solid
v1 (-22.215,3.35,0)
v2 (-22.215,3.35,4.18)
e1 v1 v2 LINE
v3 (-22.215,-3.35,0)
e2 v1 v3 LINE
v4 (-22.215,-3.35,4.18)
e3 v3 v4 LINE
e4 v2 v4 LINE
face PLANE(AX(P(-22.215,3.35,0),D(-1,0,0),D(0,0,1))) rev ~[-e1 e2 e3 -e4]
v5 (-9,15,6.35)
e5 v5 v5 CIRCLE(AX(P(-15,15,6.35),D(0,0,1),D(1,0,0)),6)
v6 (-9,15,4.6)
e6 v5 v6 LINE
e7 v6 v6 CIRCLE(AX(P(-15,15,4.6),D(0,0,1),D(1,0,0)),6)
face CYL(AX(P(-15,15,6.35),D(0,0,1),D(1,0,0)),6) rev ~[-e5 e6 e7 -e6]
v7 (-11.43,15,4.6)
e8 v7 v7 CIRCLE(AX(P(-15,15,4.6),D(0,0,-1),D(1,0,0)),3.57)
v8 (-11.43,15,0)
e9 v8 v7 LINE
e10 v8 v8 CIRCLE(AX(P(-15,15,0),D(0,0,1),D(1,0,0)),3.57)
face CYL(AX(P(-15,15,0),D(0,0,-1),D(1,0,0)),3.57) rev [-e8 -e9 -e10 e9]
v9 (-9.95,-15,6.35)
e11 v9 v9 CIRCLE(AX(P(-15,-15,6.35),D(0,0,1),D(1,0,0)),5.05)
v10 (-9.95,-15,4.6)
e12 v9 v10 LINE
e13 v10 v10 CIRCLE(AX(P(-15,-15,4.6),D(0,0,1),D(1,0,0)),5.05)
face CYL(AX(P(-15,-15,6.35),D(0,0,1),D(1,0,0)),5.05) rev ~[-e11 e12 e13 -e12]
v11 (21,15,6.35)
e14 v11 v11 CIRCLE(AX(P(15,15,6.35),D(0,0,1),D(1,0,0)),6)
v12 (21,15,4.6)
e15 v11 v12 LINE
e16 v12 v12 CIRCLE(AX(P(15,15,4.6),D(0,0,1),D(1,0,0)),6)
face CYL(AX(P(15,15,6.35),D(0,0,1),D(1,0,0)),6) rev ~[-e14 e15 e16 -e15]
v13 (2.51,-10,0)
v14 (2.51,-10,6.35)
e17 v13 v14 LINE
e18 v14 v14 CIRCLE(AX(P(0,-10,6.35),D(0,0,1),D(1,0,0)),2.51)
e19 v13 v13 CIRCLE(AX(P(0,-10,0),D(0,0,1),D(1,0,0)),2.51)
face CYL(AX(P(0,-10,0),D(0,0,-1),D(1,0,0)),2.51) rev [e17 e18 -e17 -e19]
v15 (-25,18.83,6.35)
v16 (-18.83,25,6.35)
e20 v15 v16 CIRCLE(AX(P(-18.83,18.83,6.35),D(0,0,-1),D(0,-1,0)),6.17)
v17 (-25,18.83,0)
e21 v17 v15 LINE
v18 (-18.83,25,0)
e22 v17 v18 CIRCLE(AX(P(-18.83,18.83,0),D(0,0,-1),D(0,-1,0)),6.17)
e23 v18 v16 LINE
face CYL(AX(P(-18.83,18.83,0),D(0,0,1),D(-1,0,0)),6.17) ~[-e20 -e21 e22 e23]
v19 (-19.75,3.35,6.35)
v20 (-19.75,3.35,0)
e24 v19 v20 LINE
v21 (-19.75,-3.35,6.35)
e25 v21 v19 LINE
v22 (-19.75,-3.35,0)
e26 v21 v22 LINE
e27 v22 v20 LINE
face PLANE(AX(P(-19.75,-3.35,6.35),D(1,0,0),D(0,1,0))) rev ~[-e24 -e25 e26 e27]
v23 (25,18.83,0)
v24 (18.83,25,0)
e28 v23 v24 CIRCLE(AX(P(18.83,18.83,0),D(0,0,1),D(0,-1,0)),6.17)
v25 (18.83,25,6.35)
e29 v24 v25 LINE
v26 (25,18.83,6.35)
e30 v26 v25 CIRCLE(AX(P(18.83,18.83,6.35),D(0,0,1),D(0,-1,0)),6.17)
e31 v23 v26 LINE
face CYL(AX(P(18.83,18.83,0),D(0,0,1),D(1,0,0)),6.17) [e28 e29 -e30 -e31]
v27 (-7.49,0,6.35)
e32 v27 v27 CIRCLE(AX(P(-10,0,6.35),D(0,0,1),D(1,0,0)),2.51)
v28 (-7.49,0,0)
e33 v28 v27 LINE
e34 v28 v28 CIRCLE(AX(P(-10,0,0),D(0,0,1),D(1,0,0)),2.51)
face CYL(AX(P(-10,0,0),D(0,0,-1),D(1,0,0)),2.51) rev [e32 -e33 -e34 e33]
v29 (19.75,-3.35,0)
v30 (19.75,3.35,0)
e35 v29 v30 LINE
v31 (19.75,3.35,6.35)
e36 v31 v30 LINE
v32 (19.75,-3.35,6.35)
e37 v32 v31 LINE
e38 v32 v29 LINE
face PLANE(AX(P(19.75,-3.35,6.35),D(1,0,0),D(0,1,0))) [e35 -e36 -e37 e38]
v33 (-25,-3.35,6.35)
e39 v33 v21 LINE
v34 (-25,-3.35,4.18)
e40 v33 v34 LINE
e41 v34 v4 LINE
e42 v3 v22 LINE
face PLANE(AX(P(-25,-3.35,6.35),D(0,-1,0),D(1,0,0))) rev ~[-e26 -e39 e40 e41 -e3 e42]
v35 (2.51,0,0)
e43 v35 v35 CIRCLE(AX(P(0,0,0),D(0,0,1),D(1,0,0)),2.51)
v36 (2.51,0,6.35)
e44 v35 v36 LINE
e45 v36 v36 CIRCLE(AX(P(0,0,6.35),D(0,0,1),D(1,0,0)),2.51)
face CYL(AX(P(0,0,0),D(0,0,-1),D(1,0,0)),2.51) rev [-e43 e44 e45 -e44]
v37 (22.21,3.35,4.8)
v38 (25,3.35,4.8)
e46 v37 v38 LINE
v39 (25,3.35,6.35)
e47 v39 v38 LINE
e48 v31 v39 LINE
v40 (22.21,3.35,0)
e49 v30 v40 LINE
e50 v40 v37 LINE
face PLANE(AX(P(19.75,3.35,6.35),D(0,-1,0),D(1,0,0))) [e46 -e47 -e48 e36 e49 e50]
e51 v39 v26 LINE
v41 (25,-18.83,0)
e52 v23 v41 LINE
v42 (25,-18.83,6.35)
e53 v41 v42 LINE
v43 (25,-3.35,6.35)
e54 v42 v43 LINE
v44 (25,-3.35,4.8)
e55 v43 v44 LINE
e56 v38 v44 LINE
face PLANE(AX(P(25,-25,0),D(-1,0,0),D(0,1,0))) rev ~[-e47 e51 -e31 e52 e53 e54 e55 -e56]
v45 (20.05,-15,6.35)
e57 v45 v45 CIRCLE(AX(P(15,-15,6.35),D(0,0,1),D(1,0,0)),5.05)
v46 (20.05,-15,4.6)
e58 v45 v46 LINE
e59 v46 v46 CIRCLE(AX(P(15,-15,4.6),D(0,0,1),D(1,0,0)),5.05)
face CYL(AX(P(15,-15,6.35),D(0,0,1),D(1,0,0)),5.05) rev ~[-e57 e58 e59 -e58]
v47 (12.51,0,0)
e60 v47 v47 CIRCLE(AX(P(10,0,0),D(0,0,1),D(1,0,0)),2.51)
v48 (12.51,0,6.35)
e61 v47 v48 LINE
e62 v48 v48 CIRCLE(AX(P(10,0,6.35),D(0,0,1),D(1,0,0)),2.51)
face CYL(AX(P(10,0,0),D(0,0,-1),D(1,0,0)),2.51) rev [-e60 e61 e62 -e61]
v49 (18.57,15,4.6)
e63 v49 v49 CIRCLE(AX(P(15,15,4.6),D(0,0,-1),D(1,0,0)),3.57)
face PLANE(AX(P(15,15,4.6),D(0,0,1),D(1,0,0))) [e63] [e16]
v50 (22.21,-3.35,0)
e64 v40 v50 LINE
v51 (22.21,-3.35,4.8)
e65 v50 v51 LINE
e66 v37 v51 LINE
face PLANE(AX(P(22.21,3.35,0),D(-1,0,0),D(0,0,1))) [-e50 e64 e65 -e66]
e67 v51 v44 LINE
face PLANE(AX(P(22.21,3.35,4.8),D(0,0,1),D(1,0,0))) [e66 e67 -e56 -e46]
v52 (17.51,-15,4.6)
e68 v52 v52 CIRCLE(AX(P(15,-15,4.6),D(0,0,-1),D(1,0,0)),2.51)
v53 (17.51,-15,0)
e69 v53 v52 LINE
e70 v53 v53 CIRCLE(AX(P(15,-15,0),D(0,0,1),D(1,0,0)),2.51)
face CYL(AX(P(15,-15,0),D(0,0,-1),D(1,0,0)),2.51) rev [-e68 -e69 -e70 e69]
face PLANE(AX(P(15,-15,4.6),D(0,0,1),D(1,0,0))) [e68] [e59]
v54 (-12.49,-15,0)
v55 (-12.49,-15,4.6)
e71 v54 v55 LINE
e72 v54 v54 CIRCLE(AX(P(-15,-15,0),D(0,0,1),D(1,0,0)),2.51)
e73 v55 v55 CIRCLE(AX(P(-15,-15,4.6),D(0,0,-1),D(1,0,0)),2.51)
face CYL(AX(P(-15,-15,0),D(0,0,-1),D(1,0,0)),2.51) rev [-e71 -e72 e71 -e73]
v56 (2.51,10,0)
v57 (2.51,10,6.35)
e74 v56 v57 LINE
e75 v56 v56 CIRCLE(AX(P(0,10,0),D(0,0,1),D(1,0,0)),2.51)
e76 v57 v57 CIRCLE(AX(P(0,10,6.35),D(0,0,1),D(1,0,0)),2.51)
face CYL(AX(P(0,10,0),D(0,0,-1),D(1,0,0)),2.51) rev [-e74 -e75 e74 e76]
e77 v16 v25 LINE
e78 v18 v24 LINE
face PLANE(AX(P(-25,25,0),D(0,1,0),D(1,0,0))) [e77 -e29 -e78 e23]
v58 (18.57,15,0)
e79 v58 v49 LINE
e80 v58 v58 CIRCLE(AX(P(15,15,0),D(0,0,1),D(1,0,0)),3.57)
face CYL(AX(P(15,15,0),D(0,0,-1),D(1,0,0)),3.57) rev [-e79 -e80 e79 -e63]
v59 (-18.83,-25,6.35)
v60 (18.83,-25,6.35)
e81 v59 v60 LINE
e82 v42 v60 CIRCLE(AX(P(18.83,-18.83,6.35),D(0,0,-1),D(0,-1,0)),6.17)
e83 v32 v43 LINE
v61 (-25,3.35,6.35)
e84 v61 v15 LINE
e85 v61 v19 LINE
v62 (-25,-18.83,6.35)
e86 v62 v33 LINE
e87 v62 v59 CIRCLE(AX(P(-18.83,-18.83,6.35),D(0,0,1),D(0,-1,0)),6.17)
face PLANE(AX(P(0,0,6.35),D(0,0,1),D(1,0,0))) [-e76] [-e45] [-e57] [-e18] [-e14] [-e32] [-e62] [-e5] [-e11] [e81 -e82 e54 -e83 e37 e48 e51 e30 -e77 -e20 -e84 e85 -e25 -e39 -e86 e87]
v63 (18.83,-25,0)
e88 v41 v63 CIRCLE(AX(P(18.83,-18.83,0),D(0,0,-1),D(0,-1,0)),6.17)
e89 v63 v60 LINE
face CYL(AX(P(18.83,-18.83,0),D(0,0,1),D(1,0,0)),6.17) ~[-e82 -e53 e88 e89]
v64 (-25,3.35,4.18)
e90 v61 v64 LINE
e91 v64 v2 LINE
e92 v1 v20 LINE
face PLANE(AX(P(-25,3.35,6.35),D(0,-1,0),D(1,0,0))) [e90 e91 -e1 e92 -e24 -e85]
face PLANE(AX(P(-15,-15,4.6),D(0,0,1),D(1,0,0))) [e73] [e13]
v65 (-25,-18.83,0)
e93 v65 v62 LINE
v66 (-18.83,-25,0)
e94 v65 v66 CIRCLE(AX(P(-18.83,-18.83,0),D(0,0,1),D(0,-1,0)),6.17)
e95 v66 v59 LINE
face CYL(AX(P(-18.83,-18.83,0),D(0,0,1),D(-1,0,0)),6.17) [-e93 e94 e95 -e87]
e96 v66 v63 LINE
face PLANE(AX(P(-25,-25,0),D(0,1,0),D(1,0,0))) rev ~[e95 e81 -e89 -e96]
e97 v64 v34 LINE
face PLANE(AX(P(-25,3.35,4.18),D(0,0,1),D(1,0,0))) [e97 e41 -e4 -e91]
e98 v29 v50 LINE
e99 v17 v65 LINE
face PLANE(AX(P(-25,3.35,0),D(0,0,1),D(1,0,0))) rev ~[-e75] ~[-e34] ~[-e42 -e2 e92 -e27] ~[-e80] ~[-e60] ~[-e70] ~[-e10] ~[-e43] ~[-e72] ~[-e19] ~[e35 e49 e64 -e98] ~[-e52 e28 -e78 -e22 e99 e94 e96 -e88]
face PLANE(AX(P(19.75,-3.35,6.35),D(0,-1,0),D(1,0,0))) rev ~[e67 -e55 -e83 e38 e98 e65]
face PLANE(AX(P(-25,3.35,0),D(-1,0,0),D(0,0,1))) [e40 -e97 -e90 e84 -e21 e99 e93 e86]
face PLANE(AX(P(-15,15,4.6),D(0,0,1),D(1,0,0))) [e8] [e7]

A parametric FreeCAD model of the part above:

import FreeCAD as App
import Part
import Sketcher
Q = App.Units.Quantity


def edges_at(feature, points):
    """Names of the edges that pass closest to the given points."""
    edges = feature.Shape.Edges
    near = lambda p: min(range(len(edges)), key=lambda i: edges[i].distToShape(Part.Vertex(*p))[0])
    return sorted({f"Edge{near(p) + 1}" for p in points})

doc = App.newDocument("Part")
body = doc.addObject("PartDesign::Body", "Body")

# Sketch on XY plane
sketch1 = body.newObject("Sketcher::SketchObject", "Sketch")
sketch1.AttachmentSupport = (doc.getObject("XY_Plane"), [""])
sketch1.MapMode = "FlatFace"
sketch1.addGeometry([
    Part.LineSegment(App.Vector(-25, 25, 0), App.Vector(-25, -25, 0)),  # 0
    Part.LineSegment(App.Vector(-25, -25, 0), App.Vector(25, -25, 0)),  # 1
    Part.LineSegment(App.Vector(25, -25, 0), App.Vector(25, 25, 0)),  # 2
    Part.LineSegment(App.Vector(25, 25, 0), App.Vector(-25, 25, 0)),  # 3
    Part.Circle(App.Vector(-15, -15, 0), App.Vector(0, 0, 1), 2.51),  # 4
    Part.Circle(App.Vector(0, -10, 0), App.Vector(0, 0, 1), 2.51),  # 5
    Part.Circle(App.Vector(-10, 0, 0), App.Vector(0, 0, 1), 2.51),  # 6
    Part.Circle(App.Vector(0, 0, 0), App.Vector(0, 0, 1), 2.51),  # 7
    Part.Circle(App.Vector(15, -15, 0), App.Vector(0, 0, 1), 2.51),  # 8
    Part.Circle(App.Vector(10, 0, 0), App.Vector(0, 0, 1), 2.51),  # 9
    Part.Circle(App.Vector(-15, 15, 0), App.Vector(0, 0, 1), 3.57),  # 10
    Part.Circle(App.Vector(0, 10, 0), App.Vector(0, 0, 1), 2.51),  # 11
    Part.Circle(App.Vector(15, 15, 0), App.Vector(0, 0, 1), 3.57),  # 12
], False)
sketch1.addConstraint([
    Sketcher.Constraint("Coincident", 0, 2, 1, 1),
    Sketcher.Constraint("Coincident", 1, 2, 2, 1),
    Sketcher.Constraint("Coincident", 2, 2, 3, 1),
    Sketcher.Constraint("Coincident", 3, 2, 0, 1),
    Sketcher.Constraint("Vertical", 0),
    Sketcher.Constraint("Horizontal", 1),
    Sketcher.Constraint("Vertical", 2),
    Sketcher.Constraint("Horizontal", 3),
    Sketcher.Constraint("Coincident", 7, 3, -1, 1),
    Sketcher.Constraint("Equal", 4, 5),
    Sketcher.Constraint("Equal", 5, 6),
    Sketcher.Constraint("Equal", 6, 7),
    Sketcher.Constraint("Equal", 7, 8),
    Sketcher.Constraint("Equal", 8, 9),
    Sketcher.Constraint("Equal", 9, 11),
    Sketcher.Constraint("Equal", 10, 12),
    Sketcher.Constraint("Symmetric", 6, 3, 9, 3, -1, 1),
    Sketcher.Constraint("Symmetric", 8, 3, 10, 3, -1, 1),
    Sketcher.Constraint("Symmetric", 5, 3, 11, 3, -1, 1),
    Sketcher.Constraint("Symmetric", 4, 3, 12, 3, -1, 1),
    Sketcher.Constraint("Symmetric", 0, 2, 2, 2, -1, 1),
    Sketcher.Constraint("Symmetric", 4, 3, 8, 3, -2),
    Sketcher.Constraint("PointOnObject", 5, 3, -2),
    Sketcher.Constraint("PointOnObject", 6, 3, -1),
    Sketcher.Constraint("Equal", 3, 0),
    Sketcher.Constraint("Diameter", 4, Q("5.02 mm")),
    Sketcher.Constraint("Diameter", 10, Q("7.14 mm")),
    Sketcher.Constraint("DistanceX", 1, 1, 1, 2, Q("50 mm")),
    Sketcher.Constraint("DistanceX", 4, 3, -1, 1, Q("15 mm")),
    Sketcher.Constraint("DistanceY", 4, 3, -1, 1, Q("15 mm")),
    Sketcher.Constraint("DistanceY", 5, 3, -1, 1, Q("10 mm")),
    Sketcher.Constraint("DistanceX", 6, 3, -1, 1, Q("10 mm")),
])
pad1 = body.newObject("PartDesign::Pad", "Pad")
pad1.Profile = sketch1
pad1.Length = 6.35

# Sketch on XY plane
sketch2 = body.newObject("Sketcher::SketchObject", "Sketch001")
sketch2.AttachmentSupport = (doc.getObject("XY_Plane"), [""])
sketch2.MapMode = "FlatFace"
sketch2.AttachmentOffset = App.Placement(App.Vector(0, 0, 6.35), App.Rotation())
sketch2.addGeometry([
    Part.Circle(App.Vector(-15, 15, 0), App.Vector(0, 0, 1), 6),
    Part.Circle(App.Vector(15, 15, 0), App.Vector(0, 0, 1), 6),
    Part.Circle(App.Vector(-15, -15, 0), App.Vector(0, 0, 1), 5.05),
    Part.Circle(App.Vector(15, -15, 0), App.Vector(0, 0, 1), 5.05),
], False)
sketch2.addConstraint([
    Sketcher.Constraint("Equal", 0, 1),
    Sketcher.Constraint("Equal", 2, 3),
    Sketcher.Constraint("Symmetric", 1, 3, 2, 3, -1, 1),
    Sketcher.Constraint("Symmetric", 0, 3, 3, 3, -1, 1),
    Sketcher.Constraint("Symmetric", 0, 3, 1, 3, -2),
    Sketcher.Constraint("Diameter", 0, Q("12 mm")),
    Sketcher.Constraint("Diameter", 2, Q("10.1 mm")),
    Sketcher.Constraint("DistanceX", 0, 3, -1, 1, Q("15 mm")),
    Sketcher.Constraint("DistanceY", -1, 1, 0, 3, Q("15 mm")),
])
pocket1 = body.newObject("PartDesign::Pocket", "Pocket")
pocket1.Profile = sketch2
pocket1.Length = 1.75

# Sketch on XY plane
sketch3 = body.newObject("Sketcher::SketchObject", "Sketch002")
sketch3.AttachmentSupport = (doc.getObject("XY_Plane"), [""])
sketch3.MapMode = "FlatFace"
sketch3.AttachmentOffset = App.Placement(App.Vector(0, 0, 6.35), App.Rotation())
sketch3.addGeometry([
    Part.LineSegment(App.Vector(-25, 3.35, 0), App.Vector(-25, -3.35, 0)),  # 0
    Part.LineSegment(App.Vector(-25, -3.35, 0), App.Vector(-19.75, -3.35, 0)),  # 1
    Part.LineSegment(App.Vector(-19.75, -3.35, 0), App.Vector(-19.75, 3.35, 0)),  # 2
    Part.LineSegment(App.Vector(-19.75, 3.35, 0), App.Vector(-25, 3.35, 0)),  # 3
    Part.LineSegment(App.Vector(19.75, 3.35, 0), App.Vector(19.75, -3.35, 0)),  # 4
    Part.LineSegment(App.Vector(19.75, -3.35, 0), App.Vector(25, -3.35, 0)),  # 5
    Part.LineSegment(App.Vector(25, -3.35, 0), App.Vector(25, 3.35, 0)),  # 6
    Part.LineSegment(App.Vector(25, 3.35, 0), App.Vector(19.75, 3.35, 0)),  # 7
], False)
sketch3.addConstraint([
    Sketcher.Constraint("Coincident", 0, 2, 1, 1),
    Sketcher.Constraint("Coincident", 1, 2, 2, 1),
    Sketcher.Constraint("Coincident", 2, 2, 3, 1),
    Sketcher.Constraint("Coincident", 3, 2, 0, 1),
    Sketcher.Constraint("Coincident", 4, 2, 5, 1),
    Sketcher.Constraint("Coincident", 5, 2, 6, 1),
    Sketcher.Constraint("Coincident", 6, 2, 7, 1),
    Sketcher.Constraint("Coincident", 7, 2, 4, 1),
    Sketcher.Constraint("Vertical", 0),
    Sketcher.Constraint("Horizontal", 1),
    Sketcher.Constraint("Vertical", 2),
    Sketcher.Constraint("Horizontal", 3),
    Sketcher.Constraint("Vertical", 4),
    Sketcher.Constraint("Horizontal", 5),
    Sketcher.Constraint("Vertical", 6),
    Sketcher.Constraint("Horizontal", 7),
    Sketcher.Constraint("Symmetric", 2, 2, 4, 2, -1, 1),
    Sketcher.Constraint("Symmetric", 0, 2, 6, 2, -1, 1),
    Sketcher.Constraint("Horizontal", 1, 2, 4, 2),
    Sketcher.Constraint("DistanceY", 0, 2, 0, 1, Q("6.7 mm")),
    Sketcher.Constraint("DistanceX", 0, 2, -1, 1, Q("25 mm")),
    Sketcher.Constraint("DistanceX", 1, 1, 1, 2, Q("5.25 mm")),
])
pocket2 = body.newObject("PartDesign::Pocket", "Pocket001")
pocket2.Profile = sketch3
pocket2.Length = 7

# Sketch on XZ plane
sketch4 = body.newObject("Sketcher::SketchObject", "Sketch003")
sketch4.AttachmentSupport = (doc.getObject("XZ_Plane"), [""])
sketch4.MapMode = "FlatFace"
sketch4.AttachmentOffset = App.Placement(App.Vector(0, 0, -3.35), App.Rotation())
sketch4.addGeometry([
    Part.LineSegment(App.Vector(-25, 4.18, 0), App.Vector(-25, 0, 0)),  # 0
    Part.LineSegment(App.Vector(-25, 0, 0), App.Vector(-22.215, 0, 0)),  # 1
    Part.LineSegment(App.Vector(-22.215, 0, 0), App.Vector(-22.215, 4.18, 0)),  # 2
    Part.LineSegment(App.Vector(-22.215, 4.18, 0), App.Vector(-25, 4.18, 0)),  # 3
    Part.LineSegment(App.Vector(22.21, 4.8, 0), App.Vector(22.21, 0, 0)),  # 4
    Part.LineSegment(App.Vector(22.21, 0, 0), App.Vector(25, 0, 0)),  # 5
    Part.LineSegment(App.Vector(25, 0, 0), App.Vector(25, 4.8, 0)),  # 6
    Part.LineSegment(App.Vector(25, 4.8, 0), App.Vector(22.21, 4.8, 0)),  # 7
], False)
sketch4.addConstraint([
    Sketcher.Constraint("Coincident", 0, 2, 1, 1),
    Sketcher.Constraint("Coincident", 1, 2, 2, 1),
    Sketcher.Constraint("Coincident", 2, 2, 3, 1),
    Sketcher.Constraint("Coincident", 3, 2, 0, 1),
    Sketcher.Constraint("Coincident", 4, 2, 5, 1),
    Sketcher.Constraint("Coincident", 5, 2, 6, 1),
    Sketcher.Constraint("Coincident", 6, 2, 7, 1),
    Sketcher.Constraint("Coincident", 7, 2, 4, 1),
    Sketcher.Constraint("Vertical", 0),
    Sketcher.Constraint("Horizontal", 1),
    Sketcher.Constraint("Vertical", 2),
    Sketcher.Constraint("Horizontal", 3),
    Sketcher.Constraint("Vertical", 4),
    Sketcher.Constraint("Horizontal", 5),
    Sketcher.Constraint("Vertical", 6),
    Sketcher.Constraint("Horizontal", 7),
    Sketcher.Constraint("Symmetric", 0, 2, 5, 2, -1, 1),
    Sketcher.Constraint("PointOnObject", 0, 2, -1),
    Sketcher.Constraint("DistanceY", 4, 2, 4, 1, Q("4.8 mm")),
    Sketcher.Constraint("DistanceX", 0, 2, -1, 1, Q("25 mm")),
    Sketcher.Constraint("DistanceX", 5, 1, 5, 2, Q("2.79 mm")),
    Sketcher.Constraint("DistanceY", 0, 2, 0, 1, Q("4.18 mm")),
    Sketcher.Constraint("DistanceX", 1, 1, 1, 2, Q("2.785 mm")),
])
pad2 = body.newObject("PartDesign::Pad", "Pad001")
pad2.Profile = sketch4
pad2.Length = 6.7
doc.recompute()

fillet = body.newObject("PartDesign::Fillet", "Fillet")
fillet.Base = (pad2, edges_at(pad2, [
    (25, -25, 3.175),
    (-25, -25, 3.175),
    (-25, 25, 3.175),
    (25, 25, 3.175),
]))
fillet.Radius = 6.17

doc.recompute()
